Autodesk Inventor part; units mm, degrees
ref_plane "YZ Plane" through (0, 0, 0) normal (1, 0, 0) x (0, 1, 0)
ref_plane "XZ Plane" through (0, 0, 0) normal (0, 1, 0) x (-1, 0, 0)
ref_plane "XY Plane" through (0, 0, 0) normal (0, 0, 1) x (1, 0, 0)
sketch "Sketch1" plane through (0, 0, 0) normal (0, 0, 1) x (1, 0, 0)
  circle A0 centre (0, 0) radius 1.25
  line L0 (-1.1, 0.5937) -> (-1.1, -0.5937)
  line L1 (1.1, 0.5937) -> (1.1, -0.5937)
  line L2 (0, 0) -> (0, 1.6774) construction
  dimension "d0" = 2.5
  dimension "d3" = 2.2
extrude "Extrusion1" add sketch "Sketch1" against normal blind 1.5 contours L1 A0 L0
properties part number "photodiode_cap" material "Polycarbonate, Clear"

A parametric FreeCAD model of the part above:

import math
import FreeCAD as App
import Part
import Sketcher
Q = App.Units.Quantity

doc = App.newDocument("Part")
body = doc.addObject("PartDesign::Body", "Body")

sketch1 = body.newObject("Sketcher::SketchObject", "Sketch")
sketch1.AttachmentSupport = (doc.getObject("XY_Plane"), [""])
sketch1.MapMode = "FlatFace"
sketch1.addGeometry([
    Part.LineSegment(App.Vector(1.1, -0.6, 0), App.Vector(1.1, 0.6, 0)),
    Part.ArcOfCircle(Part.Circle(App.Vector(0, 0, 0), App.Vector(0, 0, 1), 1.2), math.radians(28), math.radians(152)),
    Part.LineSegment(App.Vector(-1.1, 0.6, 0), App.Vector(-1.1, -0.6, 0)),
    Part.ArcOfCircle(Part.Circle(App.Vector(0, 0, 0), App.Vector(0, 0, 1), 1.2), math.radians(-152), math.radians(-28)),
], False)
sketch1.addConstraint([
    Sketcher.Constraint("Coincident", 0, 2, 1, 1),
    Sketcher.Constraint("Coincident", 1, 2, 2, 1),
    Sketcher.Constraint("Coincident", 2, 2, 3, 1),
    Sketcher.Constraint("Coincident", 3, 2, 0, 1),
    Sketcher.Constraint("Vertical", 0),
    Sketcher.Constraint("Vertical", 2),
    Sketcher.Constraint("Coincident", 1, 3, -1, 1),
    Sketcher.Constraint("Coincident", 3, 3, -1, 1),
    Sketcher.Constraint("Equal", 1, 3),
    Sketcher.Constraint("Horizontal", 0, 2, 1, 2),
    Sketcher.Constraint("Radius", 1, Q("1.25 mm")),
    Sketcher.Constraint("DistanceX", 1, 2, 0, 2, Q("2.2 mm")),
])
pad1 = body.newObject("PartDesign::Pad", "Pad")
pad1.Profile = sketch1
pad1.Length = 1.5
pad1.Reversed = True

doc.recompute()
